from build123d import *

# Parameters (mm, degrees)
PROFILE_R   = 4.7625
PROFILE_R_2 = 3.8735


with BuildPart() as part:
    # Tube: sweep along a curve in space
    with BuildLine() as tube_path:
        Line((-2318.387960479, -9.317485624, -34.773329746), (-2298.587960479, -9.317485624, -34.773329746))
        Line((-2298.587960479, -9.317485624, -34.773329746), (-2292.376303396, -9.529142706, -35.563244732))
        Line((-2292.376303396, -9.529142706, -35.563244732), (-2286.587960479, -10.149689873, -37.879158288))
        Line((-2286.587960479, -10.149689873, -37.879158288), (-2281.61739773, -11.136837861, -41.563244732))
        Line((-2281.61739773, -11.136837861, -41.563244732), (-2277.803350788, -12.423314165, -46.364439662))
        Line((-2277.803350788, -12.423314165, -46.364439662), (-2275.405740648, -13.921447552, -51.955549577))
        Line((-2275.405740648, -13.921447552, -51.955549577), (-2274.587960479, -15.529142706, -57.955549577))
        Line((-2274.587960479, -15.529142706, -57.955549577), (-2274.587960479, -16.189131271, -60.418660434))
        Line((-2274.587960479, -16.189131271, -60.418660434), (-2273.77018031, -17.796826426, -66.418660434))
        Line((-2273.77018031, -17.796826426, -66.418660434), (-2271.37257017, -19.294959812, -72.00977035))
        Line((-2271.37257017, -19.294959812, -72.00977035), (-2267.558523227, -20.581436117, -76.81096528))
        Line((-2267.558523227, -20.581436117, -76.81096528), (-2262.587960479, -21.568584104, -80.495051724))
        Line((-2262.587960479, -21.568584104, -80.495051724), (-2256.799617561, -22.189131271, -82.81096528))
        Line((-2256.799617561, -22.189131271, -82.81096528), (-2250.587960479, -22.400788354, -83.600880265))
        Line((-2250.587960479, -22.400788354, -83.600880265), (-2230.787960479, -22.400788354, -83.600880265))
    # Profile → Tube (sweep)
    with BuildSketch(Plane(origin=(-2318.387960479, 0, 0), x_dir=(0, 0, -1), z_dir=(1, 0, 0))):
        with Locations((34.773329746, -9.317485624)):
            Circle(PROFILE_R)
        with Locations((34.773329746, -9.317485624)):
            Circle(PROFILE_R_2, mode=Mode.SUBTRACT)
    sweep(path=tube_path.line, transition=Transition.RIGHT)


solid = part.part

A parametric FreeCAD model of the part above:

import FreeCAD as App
import Part
import Sketcher

V = App.Vector
Q = App.Units.Quantity

doc = App.newDocument("Part")
params = doc.addObject("Spreadsheet::Sheet", "Params")
for row, (alias, value) in enumerate([
    ("sketch1_diameter", "0.375 in"),
    ("sketch1_diameter2", "0.305 in"),
], start=1):
    params.set(f"A{row}", alias)
    params.set(f"B{row}", "=" + value)
    params.setAlias(f"B{row}", alias)

body = doc.addObject("PartDesign::Body", "Body")

# Sketch on YZ plane
sketch1 = body.newObject("Sketcher::SketchObject", "Sketch")
sketch1.AttachmentSupport = (doc.getObject("YZ_Plane"), [""])
sketch1.MapMode = "FlatFace"
sketch1.AttachmentOffset = App.Placement(V(0, 0, -2318.38796), App.Rotation())
sketch1.addGeometry([
    Part.Circle(V(-9.317486, -34.77333, 0), V(0, 0, 1), 4.7625),
    Part.Circle(V(-9.317486, -34.77333, 0), V(0, 0, 1), 3.8735),
], False)
sketch1.addConstraint([
    Sketcher.Constraint("Coincident", 1, 3, 0, 3),
    Sketcher.Constraint("Diameter", 0, Q("0.375 in")),
    Sketcher.Constraint("Diameter", 1, Q("0.305 in")),
    Sketcher.Constraint("DistanceY", 0, 3, -1, 1, Q("34.77333 mm")),
    Sketcher.Constraint("DistanceX", 0, 3, -1, 1, Q("9.317486 mm")),
])
sketch1.setExpression("Constraints[1]", "Params.sketch1_diameter")
sketch1.setExpression("Constraints[2]", "Params.sketch1_diameter2")

# Sketch on an angled plane
sketch2 = body.newObject("Sketcher::SketchObject", "Sketch001")
sketch2.Placement = App.Placement(V(0, 0, 0), App.Rotation(V(0, 0.258819045, 0.965925826), V(0.999999999, 0, 0), V(0, 0.965925826, -0.258819045), "ZXY"))
sketch2.addGeometry([
    Part.LineSegment(V(-36, -2318.387958, 0), V(-36, -2298.587958, 0)),  # 0
    Part.LineSegment(V(-36, -2298.587958, 0), V(-36.81778, -2292.376301, 0)),  # 1
    Part.LineSegment(V(-36.81778, -2292.376301, 0), V(-39.21539, -2286.587958, 0)),  # 2
    Part.LineSegment(V(-39.21539, -2286.587958, 0), V(-43.029437, -2281.617395, 0)),  # 3
    Part.LineSegment(V(-43.029437, -2281.617395, 0), V(-48, -2277.803348, 0)),  # 4
    Part.LineSegment(V(-48, -2277.803348, 0), V(-53.788343, -2275.405738, 0)),  # 5
    Part.LineSegment(V(-53.788343, -2275.405738, 0), V(-60, -2274.587958, 0)),  # 6
    Part.LineSegment(V(-60, -2274.587958, 0), V(-62.55, -2274.587958, 0)),  # 7
    Part.LineSegment(V(-62.55, -2274.587958, 0), V(-68.761657, -2273.770178, 0)),  # 8
    Part.LineSegment(V(-68.761657, -2273.770178, 0), V(-74.55, -2271.372567, 0)),  # 9
    Part.LineSegment(V(-74.55, -2271.372567, 0), V(-79.520563, -2267.55852, 0)),  # 10
    Part.LineSegment(V(-79.520563, -2267.55852, 0), V(-83.33461, -2262.587958, 0)),  # 11
    Part.LineSegment(V(-83.33461, -2262.587958, 0), V(-85.73222, -2256.799615, 0)),  # 12
    Part.LineSegment(V(-85.73222, -2256.799615, 0), V(-86.55, -2250.587958, 0)),  # 13
    Part.LineSegment(V(-86.55, -2250.587958, 0), V(-86.55, -2230.787958, 0)),  # 14
], False)
sketch2.addConstraint([
    Sketcher.Constraint("Coincident", 0, 2, 1, 1),
    Sketcher.Constraint("Coincident", 1, 2, 2, 1),
    Sketcher.Constraint("Coincident", 2, 2, 3, 1),
    Sketcher.Constraint("Coincident", 3, 2, 4, 1),
    Sketcher.Constraint("Coincident", 4, 2, 5, 1),
    Sketcher.Constraint("Coincident", 5, 2, 6, 1),
    Sketcher.Constraint("Coincident", 6, 2, 7, 1),
    Sketcher.Constraint("Coincident", 7, 2, 8, 1),
    Sketcher.Constraint("Coincident", 8, 2, 9, 1),
    Sketcher.Constraint("Coincident", 9, 2, 10, 1),
    Sketcher.Constraint("Coincident", 10, 2, 11, 1),
    Sketcher.Constraint("Coincident", 11, 2, 12, 1),
    Sketcher.Constraint("Coincident", 12, 2, 13, 1),
    Sketcher.Constraint("Coincident", 13, 2, 14, 1),
    Sketcher.Constraint("Vertical", 0),
    Sketcher.Constraint("Horizontal", 7),
    Sketcher.Constraint("Vertical", 14),
    Sketcher.Constraint("Parallel", 6, 8),
    Sketcher.Constraint("Parallel", 5, 9),
    Sketcher.Constraint("Parallel", 4, 10),
    Sketcher.Constraint("Parallel", 3, 11),
    Sketcher.Constraint("Parallel", 2, 12),
    Sketcher.Constraint("Parallel", 1, 13),
    Sketcher.Constraint("Equal", 0, 14),
    Sketcher.Constraint("Equal", 1, 2),
    Sketcher.Constraint("Equal", 2, 3),
    Sketcher.Constraint("Equal", 3, 4),
    Sketcher.Constraint("Equal", 4, 5),
    Sketcher.Constraint("Equal", 5, 6),
    Sketcher.Constraint("Equal", 6, 8),
    Sketcher.Constraint("Equal", 8, 9),
    Sketcher.Constraint("Equal", 9, 10),
    Sketcher.Constraint("Equal", 10, 11),
    Sketcher.Constraint("Equal", 11, 12),
    Sketcher.Constraint("Equal", 12, 13),
    Sketcher.Constraint("Angle", 1, Q("97.5 deg")),
    Sketcher.Constraint("Angle", 2, Q("112.5 deg")),
    Sketcher.Constraint("Angle", 3, Q("127.5 deg")),
    Sketcher.Constraint("Angle", 4, Q("142.5 deg")),
    Sketcher.Constraint("Angle", 5, Q("157.5 deg")),
    Sketcher.Constraint("Angle", 6, Q("172.5 deg")),
    Sketcher.Constraint("DistanceX", 7, 2, 7, 1, Q("2.55 mm")),
    Sketcher.Constraint("DistanceY", 0, 1, 0, 2, Q("19.8 mm")),
    Sketcher.Constraint("DistanceX", 0, 1, -1, 1, Q("36 mm")),
    Sketcher.Constraint("DistanceY", 1, 2, -1, 1, Q("2292.376301 mm")),
    Sketcher.Constraint("DistanceX", 4, 2, -1, 1, Q("48 mm")),
])
doc.recompute()

additivepipe = body.newObject("PartDesign::AdditivePipe", "AdditivePipe")
additivepipe.Profile = sketch1
additivepipe.Spine = (sketch2, ["Edge1", "Edge2", "Edge3", "Edge4", "Edge5", "Edge6", "Edge7", "Edge8", "Edge9", "Edge10", "Edge11", "Edge12", "Edge13", "Edge14", "Edge15"])
additivepipe.Transition = "Right corner"

doc.recompute()
